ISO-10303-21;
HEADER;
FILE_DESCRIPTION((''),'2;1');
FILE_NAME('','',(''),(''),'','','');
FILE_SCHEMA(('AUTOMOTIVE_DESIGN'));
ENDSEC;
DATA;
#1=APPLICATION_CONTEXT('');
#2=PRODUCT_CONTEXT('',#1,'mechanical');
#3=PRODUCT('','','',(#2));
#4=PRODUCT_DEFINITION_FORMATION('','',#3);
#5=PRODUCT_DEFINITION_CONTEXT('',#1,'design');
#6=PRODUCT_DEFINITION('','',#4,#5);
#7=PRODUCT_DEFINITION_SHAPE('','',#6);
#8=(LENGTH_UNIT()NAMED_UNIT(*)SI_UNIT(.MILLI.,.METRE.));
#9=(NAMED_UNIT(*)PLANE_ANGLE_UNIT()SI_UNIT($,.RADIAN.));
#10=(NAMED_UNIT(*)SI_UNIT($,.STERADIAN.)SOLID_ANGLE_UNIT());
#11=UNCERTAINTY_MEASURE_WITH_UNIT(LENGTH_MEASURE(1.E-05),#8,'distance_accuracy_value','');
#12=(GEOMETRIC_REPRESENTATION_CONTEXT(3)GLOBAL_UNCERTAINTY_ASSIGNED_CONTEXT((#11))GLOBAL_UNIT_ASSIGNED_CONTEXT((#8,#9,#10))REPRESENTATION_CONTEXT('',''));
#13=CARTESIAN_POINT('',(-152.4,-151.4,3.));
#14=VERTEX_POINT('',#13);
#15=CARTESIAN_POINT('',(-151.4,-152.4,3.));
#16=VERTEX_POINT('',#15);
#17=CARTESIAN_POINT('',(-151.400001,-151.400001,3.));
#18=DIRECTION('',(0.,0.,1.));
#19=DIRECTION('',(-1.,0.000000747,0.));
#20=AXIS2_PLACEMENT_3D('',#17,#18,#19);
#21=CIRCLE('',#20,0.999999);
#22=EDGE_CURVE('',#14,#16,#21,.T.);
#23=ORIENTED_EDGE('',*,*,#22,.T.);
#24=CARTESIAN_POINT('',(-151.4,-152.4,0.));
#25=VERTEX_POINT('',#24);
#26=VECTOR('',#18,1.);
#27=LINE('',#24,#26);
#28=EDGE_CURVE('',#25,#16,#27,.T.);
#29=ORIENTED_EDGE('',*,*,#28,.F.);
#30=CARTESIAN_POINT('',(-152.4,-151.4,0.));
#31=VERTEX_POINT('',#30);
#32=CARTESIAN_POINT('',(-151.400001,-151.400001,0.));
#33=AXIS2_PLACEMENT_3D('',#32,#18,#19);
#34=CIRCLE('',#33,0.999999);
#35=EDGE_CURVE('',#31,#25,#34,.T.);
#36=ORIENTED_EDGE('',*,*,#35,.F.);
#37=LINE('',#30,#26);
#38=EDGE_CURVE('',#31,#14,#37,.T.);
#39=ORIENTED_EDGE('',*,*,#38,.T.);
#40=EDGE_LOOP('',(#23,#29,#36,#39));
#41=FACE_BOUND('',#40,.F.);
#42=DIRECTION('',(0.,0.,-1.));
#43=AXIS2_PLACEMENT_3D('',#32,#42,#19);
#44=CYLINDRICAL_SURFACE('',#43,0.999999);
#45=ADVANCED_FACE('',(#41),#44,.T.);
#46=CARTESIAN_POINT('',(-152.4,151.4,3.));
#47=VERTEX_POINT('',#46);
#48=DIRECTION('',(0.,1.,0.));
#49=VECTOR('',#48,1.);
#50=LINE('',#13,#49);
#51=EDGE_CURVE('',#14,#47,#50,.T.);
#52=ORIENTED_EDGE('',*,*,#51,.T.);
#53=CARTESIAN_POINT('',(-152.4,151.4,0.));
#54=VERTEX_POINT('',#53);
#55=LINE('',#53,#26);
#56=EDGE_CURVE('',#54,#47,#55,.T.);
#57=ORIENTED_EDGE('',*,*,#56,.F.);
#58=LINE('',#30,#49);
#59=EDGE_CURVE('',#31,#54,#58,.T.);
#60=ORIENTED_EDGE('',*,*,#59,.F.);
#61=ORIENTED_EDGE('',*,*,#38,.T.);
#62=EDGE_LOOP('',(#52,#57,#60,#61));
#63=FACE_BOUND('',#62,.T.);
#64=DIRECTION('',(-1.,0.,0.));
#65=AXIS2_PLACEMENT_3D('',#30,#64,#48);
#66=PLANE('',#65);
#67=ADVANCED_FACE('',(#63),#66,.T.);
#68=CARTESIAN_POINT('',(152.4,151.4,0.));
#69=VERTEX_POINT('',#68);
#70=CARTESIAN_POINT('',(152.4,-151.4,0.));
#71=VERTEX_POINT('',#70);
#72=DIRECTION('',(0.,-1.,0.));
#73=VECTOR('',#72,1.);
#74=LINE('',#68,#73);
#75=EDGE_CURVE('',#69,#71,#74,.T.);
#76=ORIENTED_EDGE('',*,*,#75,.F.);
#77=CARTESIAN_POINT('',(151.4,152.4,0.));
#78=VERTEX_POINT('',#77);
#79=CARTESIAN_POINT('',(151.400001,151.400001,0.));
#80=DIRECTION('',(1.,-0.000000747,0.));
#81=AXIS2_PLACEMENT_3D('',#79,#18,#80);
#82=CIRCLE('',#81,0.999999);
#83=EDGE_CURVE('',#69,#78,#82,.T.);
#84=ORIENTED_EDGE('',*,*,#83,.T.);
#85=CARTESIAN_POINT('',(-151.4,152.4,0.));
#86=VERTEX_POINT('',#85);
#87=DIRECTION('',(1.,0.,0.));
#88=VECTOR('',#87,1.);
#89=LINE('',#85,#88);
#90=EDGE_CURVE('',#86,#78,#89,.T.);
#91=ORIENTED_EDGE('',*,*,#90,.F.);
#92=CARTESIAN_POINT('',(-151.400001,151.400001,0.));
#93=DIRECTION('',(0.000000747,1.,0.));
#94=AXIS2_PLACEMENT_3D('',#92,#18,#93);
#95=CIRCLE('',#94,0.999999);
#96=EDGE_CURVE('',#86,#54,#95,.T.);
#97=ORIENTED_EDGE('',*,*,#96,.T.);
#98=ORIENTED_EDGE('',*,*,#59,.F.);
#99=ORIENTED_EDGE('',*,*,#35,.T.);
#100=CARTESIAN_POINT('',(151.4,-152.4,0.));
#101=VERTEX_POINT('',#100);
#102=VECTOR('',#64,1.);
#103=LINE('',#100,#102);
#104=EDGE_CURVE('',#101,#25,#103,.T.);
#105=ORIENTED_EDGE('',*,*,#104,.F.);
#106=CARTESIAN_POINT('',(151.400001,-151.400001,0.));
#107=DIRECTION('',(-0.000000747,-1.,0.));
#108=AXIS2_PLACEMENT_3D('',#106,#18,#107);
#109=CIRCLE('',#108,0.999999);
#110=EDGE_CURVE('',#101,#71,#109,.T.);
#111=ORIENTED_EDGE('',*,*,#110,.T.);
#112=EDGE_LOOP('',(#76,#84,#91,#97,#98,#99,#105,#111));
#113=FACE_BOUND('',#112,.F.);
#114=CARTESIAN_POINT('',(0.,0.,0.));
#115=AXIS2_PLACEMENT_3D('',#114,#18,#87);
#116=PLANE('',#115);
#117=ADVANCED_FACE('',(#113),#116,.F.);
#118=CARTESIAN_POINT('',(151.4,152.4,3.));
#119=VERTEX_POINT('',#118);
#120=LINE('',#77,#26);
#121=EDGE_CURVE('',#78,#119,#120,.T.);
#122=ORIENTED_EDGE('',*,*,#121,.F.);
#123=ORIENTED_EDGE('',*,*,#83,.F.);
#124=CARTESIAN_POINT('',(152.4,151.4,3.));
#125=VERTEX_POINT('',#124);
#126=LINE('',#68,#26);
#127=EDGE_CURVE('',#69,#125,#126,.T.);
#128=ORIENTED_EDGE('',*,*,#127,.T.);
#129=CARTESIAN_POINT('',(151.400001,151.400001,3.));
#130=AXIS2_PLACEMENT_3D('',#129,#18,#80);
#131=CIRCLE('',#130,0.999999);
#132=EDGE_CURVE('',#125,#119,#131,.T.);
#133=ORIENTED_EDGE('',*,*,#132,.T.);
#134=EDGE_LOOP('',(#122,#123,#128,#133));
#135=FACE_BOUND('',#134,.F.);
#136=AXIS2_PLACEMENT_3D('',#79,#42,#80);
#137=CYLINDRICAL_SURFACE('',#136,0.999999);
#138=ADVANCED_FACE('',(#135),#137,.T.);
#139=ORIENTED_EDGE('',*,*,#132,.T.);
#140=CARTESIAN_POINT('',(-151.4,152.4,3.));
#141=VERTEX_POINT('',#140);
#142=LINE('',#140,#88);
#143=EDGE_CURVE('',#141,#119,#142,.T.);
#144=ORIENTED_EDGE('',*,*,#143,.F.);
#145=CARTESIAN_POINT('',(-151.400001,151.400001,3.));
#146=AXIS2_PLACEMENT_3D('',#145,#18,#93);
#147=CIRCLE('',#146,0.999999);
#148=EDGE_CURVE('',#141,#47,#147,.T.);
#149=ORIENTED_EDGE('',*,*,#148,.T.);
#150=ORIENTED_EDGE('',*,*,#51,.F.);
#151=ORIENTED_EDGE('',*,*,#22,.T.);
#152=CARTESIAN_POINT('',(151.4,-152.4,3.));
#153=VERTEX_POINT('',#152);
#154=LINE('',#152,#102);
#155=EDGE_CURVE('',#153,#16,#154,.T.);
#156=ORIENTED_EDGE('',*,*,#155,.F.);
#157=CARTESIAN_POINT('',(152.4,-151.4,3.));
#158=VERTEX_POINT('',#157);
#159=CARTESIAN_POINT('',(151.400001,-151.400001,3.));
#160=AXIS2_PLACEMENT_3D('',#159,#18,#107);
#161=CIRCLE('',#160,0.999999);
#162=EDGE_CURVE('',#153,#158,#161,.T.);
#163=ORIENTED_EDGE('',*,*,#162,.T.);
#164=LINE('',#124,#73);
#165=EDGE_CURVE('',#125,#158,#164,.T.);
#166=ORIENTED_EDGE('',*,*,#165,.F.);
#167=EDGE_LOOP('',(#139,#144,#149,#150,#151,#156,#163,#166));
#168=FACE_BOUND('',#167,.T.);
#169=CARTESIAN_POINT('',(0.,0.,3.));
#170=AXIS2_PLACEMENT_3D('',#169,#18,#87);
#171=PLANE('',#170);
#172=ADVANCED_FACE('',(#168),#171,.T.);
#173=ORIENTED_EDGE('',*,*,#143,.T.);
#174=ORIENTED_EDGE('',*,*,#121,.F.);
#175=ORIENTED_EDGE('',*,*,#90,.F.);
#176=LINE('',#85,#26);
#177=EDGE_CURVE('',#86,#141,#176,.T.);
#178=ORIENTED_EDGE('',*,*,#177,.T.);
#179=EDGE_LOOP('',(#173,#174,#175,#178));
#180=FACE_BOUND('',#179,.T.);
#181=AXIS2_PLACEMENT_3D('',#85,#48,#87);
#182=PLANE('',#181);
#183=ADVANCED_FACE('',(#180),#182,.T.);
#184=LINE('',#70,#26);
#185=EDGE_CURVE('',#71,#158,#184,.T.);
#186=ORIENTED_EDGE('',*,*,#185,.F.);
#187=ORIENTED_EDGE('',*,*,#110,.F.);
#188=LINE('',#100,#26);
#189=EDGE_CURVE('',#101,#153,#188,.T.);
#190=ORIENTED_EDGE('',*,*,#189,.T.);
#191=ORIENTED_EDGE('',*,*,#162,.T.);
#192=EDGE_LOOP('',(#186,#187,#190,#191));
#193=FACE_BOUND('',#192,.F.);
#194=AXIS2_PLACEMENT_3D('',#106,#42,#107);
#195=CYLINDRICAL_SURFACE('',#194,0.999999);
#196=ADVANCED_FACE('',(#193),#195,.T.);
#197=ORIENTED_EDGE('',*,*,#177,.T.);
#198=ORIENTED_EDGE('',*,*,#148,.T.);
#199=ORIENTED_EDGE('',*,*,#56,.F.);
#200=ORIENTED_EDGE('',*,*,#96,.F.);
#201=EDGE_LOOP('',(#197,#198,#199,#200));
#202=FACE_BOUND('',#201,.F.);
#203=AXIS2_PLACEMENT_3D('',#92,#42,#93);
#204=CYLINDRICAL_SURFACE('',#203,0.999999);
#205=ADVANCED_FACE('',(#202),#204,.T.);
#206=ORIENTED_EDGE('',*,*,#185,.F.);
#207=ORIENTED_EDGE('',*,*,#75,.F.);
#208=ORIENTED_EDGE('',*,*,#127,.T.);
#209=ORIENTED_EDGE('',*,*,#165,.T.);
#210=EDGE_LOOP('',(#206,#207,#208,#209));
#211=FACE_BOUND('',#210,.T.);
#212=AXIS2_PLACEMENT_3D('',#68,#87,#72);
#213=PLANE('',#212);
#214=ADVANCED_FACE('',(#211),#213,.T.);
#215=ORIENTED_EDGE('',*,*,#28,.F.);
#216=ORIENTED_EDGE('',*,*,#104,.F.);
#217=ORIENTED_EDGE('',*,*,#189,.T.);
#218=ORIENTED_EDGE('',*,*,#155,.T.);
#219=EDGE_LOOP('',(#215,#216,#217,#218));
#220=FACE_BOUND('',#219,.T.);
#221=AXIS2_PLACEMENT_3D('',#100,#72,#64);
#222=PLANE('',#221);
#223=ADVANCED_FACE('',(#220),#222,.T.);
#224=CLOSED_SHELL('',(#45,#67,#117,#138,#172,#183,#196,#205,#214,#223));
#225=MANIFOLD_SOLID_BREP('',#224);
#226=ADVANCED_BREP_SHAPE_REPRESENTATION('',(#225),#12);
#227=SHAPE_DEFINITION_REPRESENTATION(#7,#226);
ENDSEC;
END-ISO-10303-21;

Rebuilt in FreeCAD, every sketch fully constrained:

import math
import FreeCAD as App
import Part
import Sketcher
Q = App.Units.Quantity

doc = App.newDocument("Part")
body = doc.addObject("PartDesign::Body", "Body")

sketch1 = body.newObject("Sketcher::SketchObject", "Sketch")
sketch1.AttachmentSupport = (doc.getObject("XY_Plane"), [""])
sketch1.MapMode = "FlatFace"
sketch1.addGeometry([
    Part.ArcOfCircle(Part.Circle(App.Vector(-151.400001, 151.400001, 0), App.Vector(0, 0, 1), 0.999999), math.radians(89.999957), math.radians(180.000043)),
    Part.LineSegment(App.Vector(-152.4, 151.4, 0), App.Vector(-152.4, -151.4, 0)),
    Part.ArcOfCircle(Part.Circle(App.Vector(-151.400001, -151.400001, 0), App.Vector(0, 0, 1), 0.999999), math.radians(179.999957), math.radians(270.000043)),
    Part.LineSegment(App.Vector(-151.4, -152.4, 0), App.Vector(151.4, -152.4, 0)),
    Part.ArcOfCircle(Part.Circle(App.Vector(151.400001, -151.400001, 0), App.Vector(0, 0, 1), 0.999999), math.radians(-90.000043), math.radians(0.000043)),
    Part.LineSegment(App.Vector(152.4, -151.4, 0), App.Vector(152.4, 151.4, 0)),
    Part.ArcOfCircle(Part.Circle(App.Vector(151.400001, 151.400001, 0), App.Vector(0, 0, 1), 0.999999), math.radians(-0.000043), math.radians(90.000043)),
    Part.LineSegment(App.Vector(151.4, 152.4, 0), App.Vector(-151.4, 152.4, 0)),
], False)
sketch1.addConstraint([
    Sketcher.Constraint("Tangent", 0, 2, 1, 1),
    Sketcher.Constraint("Tangent", 1, 2, 2, 1),
    Sketcher.Constraint("Tangent", 2, 2, 3, 1),
    Sketcher.Constraint("Tangent", 3, 2, 4, 1),
    Sketcher.Constraint("Tangent", 4, 2, 5, 1),
    Sketcher.Constraint("Tangent", 5, 2, 6, 1),
    Sketcher.Constraint("Tangent", 6, 2, 7, 1),
    Sketcher.Constraint("Tangent", 7, 2, 0, 1),
    Sketcher.Constraint("Vertical", 1),
    Sketcher.Constraint("Horizontal", 3),
    Sketcher.Constraint("Vertical", 5),
    Sketcher.Constraint("Horizontal", 7),
    Sketcher.Constraint("Equal", 0, 2),
    Sketcher.Constraint("Equal", 2, 4),
    Sketcher.Constraint("Equal", 4, 6),
    Sketcher.Constraint("Symmetric", 0, 3, 4, 3, -1, 1),
    Sketcher.Constraint("Equal", 7, 1),
    Sketcher.Constraint("Radius", 0, Q("0.999999 mm")),
    Sketcher.Constraint("DistanceX", 3, 1, 3, 2, Q("302.8 mm")),
])
pad1 = body.newObject("PartDesign::Pad", "Pad")
pad1.Profile = sketch1
pad1.Length = 3

doc.recompute()
